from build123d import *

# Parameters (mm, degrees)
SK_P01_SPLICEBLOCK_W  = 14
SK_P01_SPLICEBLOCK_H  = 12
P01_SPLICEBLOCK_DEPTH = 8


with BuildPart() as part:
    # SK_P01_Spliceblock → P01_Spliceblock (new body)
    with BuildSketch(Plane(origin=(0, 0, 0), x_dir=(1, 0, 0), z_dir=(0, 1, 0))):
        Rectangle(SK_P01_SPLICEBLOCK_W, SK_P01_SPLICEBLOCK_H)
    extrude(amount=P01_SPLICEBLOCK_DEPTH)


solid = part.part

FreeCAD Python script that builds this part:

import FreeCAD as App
import Part
import Sketcher

V = App.Vector

doc = App.newDocument("Part")
body = doc.addObject("PartDesign::Body", "Body")

sketch1 = body.newObject("Sketcher::SketchObject", "Sketch")
sketch1.AttachmentSupport = (doc.getObject("XZ_Plane"), [""])
sketch1.MapMode = "FlatFace"
sketch1.addGeometry([
    Part.LineSegment(V(-7, -6, 0), V(-7, 6, 0)),
    Part.LineSegment(V(-7, 6, 0), V(7, 6, 0)),
    Part.LineSegment(V(7, 6, 0), V(7, -6, 0)),
    Part.LineSegment(V(7, -6, 0), V(-7, -6, 0)),
], False)
sketch1.addConstraint([
    Sketcher.Constraint("Coincident", 0, 2, 1, 1),
    Sketcher.Constraint("Coincident", 1, 2, 2, 1),
    Sketcher.Constraint("Coincident", 2, 2, 3, 1),
    Sketcher.Constraint("Coincident", 3, 2, 0, 1),
    Sketcher.Constraint("Vertical", 0),
    Sketcher.Constraint("Horizontal", 1),
    Sketcher.Constraint("Vertical", 2),
    Sketcher.Constraint("Horizontal", 3),
    Sketcher.Constraint("Symmetric", 0, 2, 2, 2, -1, 1),
    Sketcher.Constraint("DistanceX", 1, 1, 1, 2, 14.0),
    Sketcher.Constraint("DistanceY", 0, 1, 0, 2, 12.0),
])
pad1 = body.newObject("PartDesign::Pad", "Pad")
pad1.Profile = sketch1
pad1.Length = 8
pad1.Reversed = True

doc.recompute()
